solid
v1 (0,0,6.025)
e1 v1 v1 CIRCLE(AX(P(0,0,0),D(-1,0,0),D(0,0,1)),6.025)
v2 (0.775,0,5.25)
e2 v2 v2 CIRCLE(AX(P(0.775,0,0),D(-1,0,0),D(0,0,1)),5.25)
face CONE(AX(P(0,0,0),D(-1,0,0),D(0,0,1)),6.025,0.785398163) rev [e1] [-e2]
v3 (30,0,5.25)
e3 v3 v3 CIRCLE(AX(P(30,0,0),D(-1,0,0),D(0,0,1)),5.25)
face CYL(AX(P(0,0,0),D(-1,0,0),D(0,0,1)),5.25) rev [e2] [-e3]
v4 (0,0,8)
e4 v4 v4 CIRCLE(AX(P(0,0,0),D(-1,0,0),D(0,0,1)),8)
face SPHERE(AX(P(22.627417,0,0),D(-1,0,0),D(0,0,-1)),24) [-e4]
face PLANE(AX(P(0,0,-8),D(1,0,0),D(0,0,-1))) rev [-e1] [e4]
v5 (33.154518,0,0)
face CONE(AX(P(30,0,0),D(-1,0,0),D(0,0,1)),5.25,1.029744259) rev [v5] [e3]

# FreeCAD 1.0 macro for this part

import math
import FreeCAD as App
import Part
import Sketcher

doc = App.newDocument("Part")
body = doc.addObject("PartDesign::Body", "Body")

sketch1 = body.newObject("Sketcher::SketchObject", "Sketch")
sketch1.AttachmentSupport = (doc.getObject("XZ_Plane"), [""])
sketch1.MapMode = "FlatFace"
sketch1.addGeometry([
    Part.LineSegment(App.Vector(0, 0, 0), App.Vector(47, 0, 0)),
    Part.ArcOfCircle(Part.Circle(App.Vector(23, 0, 0), App.Vector(0, 0, 1), 24), math.radians(-161), math.radians(0)),
    Part.LineSegment(App.Vector(0, -8, 0), App.Vector(0, 0, 0)),
], False)
sketch1.addConstraint([
    Sketcher.Constraint("Coincident", 0, 2, 1, 2),
    Sketcher.Constraint("Coincident", 1, 1, 2, 1),
    Sketcher.Constraint("Coincident", 2, 2, 0, 1),
    Sketcher.Constraint("Horizontal", 0),
    Sketcher.Constraint("Vertical", 2),
    Sketcher.Constraint("Coincident", 2, 2, -1, 1),
    Sketcher.Constraint("PointOnObject", 1, 3, -1),
    Sketcher.Constraint("Radius", 1, 24.0),
    Sketcher.Constraint("DistanceY", 2, 1, 2, 2, 8.0),
])
revolution = body.newObject("PartDesign::Revolution", "Revolution")
revolution.Profile = sketch1
revolution.ReferenceAxis = (sketch1, ["H_Axis"])
revolution.Angle = 360

sketch2 = body.newObject("Sketcher::SketchObject", "Sketch001")
sketch2.AttachmentSupport = (doc.getObject("YZ_Plane"), [""])
sketch2.MapMode = "FlatFace"
sketch2.addGeometry(Part.Circle(App.Vector(0, 0, 0), App.Vector(0, 0, 1), 5), False)
sketch2.addConstraint([
    Sketcher.Constraint("Coincident", 0, 3, -1, 1),
    Sketcher.Constraint("Diameter", 0, 10.5),
])
doc.recompute()
hole = body.newObject("PartDesign::Hole", "Hole")
hole.Profile = sketch2
hole.ThreadType = "None"
hole.Diameter = 10.5
hole.DepthType = "Dimension"
hole.Depth = 30
hole.DrillPoint = "Angled"
hole.DrillPointAngle = 118
hole.HoleCutType = "Countersink"
hole.HoleCutDiameter = 12.05
hole.HoleCutCountersinkAngle = 90
hole.Reversed = True

doc.recompute()
